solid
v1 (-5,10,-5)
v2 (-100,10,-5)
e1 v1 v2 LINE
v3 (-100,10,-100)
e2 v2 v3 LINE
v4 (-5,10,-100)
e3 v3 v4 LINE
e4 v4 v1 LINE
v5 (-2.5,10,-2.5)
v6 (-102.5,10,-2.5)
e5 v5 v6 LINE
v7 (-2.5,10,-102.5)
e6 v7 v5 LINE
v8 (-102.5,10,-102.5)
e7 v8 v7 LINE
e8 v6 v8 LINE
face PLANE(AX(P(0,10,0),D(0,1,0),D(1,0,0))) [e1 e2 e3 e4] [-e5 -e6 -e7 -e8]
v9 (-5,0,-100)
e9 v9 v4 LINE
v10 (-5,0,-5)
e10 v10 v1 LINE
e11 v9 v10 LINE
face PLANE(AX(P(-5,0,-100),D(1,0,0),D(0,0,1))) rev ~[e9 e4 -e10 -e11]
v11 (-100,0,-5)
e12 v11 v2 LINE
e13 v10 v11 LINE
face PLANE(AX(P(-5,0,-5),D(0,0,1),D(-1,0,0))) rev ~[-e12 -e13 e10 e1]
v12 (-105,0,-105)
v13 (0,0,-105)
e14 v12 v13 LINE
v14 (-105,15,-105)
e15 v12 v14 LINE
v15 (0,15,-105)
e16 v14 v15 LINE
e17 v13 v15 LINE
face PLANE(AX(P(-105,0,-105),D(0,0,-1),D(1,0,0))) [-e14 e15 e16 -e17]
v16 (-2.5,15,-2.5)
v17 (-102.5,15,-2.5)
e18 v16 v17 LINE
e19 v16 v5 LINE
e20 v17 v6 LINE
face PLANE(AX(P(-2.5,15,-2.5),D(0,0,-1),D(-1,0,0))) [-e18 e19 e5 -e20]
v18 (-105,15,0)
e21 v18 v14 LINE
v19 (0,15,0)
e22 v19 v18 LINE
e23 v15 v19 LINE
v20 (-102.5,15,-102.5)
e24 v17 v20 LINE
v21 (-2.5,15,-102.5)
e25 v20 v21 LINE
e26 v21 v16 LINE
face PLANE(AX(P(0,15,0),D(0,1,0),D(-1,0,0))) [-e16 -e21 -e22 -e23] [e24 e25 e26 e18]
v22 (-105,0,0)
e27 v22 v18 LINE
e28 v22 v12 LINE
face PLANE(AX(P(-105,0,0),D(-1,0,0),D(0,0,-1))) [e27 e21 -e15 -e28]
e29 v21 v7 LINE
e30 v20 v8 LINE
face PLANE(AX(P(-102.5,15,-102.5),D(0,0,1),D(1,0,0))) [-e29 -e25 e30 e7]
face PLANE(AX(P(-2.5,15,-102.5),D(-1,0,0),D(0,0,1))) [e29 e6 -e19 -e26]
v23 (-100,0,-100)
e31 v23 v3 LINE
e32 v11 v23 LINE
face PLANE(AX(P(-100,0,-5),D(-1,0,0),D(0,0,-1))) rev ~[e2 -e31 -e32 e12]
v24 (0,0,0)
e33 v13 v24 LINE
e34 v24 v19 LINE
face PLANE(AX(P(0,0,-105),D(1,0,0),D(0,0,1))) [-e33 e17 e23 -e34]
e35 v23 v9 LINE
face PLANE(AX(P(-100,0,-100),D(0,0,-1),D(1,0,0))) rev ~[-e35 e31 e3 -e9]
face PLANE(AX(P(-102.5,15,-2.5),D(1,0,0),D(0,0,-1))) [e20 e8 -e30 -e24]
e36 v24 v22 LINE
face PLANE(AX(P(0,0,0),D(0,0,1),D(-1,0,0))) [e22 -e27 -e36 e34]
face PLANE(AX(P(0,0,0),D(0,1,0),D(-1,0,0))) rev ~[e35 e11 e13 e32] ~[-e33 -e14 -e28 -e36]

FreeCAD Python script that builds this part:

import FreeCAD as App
import Part
import Sketcher
from FreeCAD import Vector

doc = App.newDocument("Part")
params = doc.addObject("Spreadsheet::Sheet", "Params")
for row, (alias, value) in enumerate([
    ("sketch1_width", "105 mm"),
    ("sketch1_width2", "95 mm"),
    ("pad1_length", "15 mm"),
    ("sketch2_width", "100 mm"),
    ("sketch2_width2", "95 mm"),
    ("pocket1_length", "5 mm"),
], start=1):
    params.set(f"A{row}", alias)
    params.set(f"B{row}", "=" + value)
    params.setAlias(f"B{row}", alias)

body = doc.addObject("PartDesign::Body", "Body")

# Sketch on XZ plane
sketch1 = body.newObject("Sketcher::SketchObject", "Sketch")
sketch1.AttachmentSupport = (doc.getObject("XZ_Plane"), [""])
sketch1.MapMode = "FlatFace"
sketch1.addGeometry(Part.LineSegment(Vector(-105, 0, 0), Vector(0, 0, 0)), False)
sketch1.addGeometry(Part.LineSegment(Vector(0, 0, 0), Vector(0, -105, 0)), False)
sketch1.addGeometry(Part.LineSegment(Vector(0, -105, 0), Vector(-105, -105, 0)), False)
sketch1.addGeometry(Part.LineSegment(Vector(-105, -105, 0), Vector(-105, 0, 0)), False)
sketch1.addGeometry(Part.LineSegment(Vector(-5, -100, 0), Vector(-5, -5, 0)), False)
sketch1.addGeometry(Part.LineSegment(Vector(-5, -5, 0), Vector(-100, -5, 0)), False)
sketch1.addGeometry(Part.LineSegment(Vector(-100, -5, 0), Vector(-100, -100, 0)), False)
sketch1.addGeometry(Part.LineSegment(Vector(-100, -100, 0), Vector(-5, -100, 0)), False)
sketch1.addConstraint(Sketcher.Constraint("Coincident", 0, 2, 1, 1))
sketch1.addConstraint(Sketcher.Constraint("Coincident", 1, 2, 2, 1))
sketch1.addConstraint(Sketcher.Constraint("Coincident", 2, 2, 3, 1))
sketch1.addConstraint(Sketcher.Constraint("Coincident", 3, 2, 0, 1))
sketch1.addConstraint(Sketcher.Constraint("Coincident", 4, 2, 5, 1))
sketch1.addConstraint(Sketcher.Constraint("Coincident", 5, 2, 6, 1))
sketch1.addConstraint(Sketcher.Constraint("Coincident", 6, 2, 7, 1))
sketch1.addConstraint(Sketcher.Constraint("Coincident", 7, 2, 4, 1))
sketch1.addConstraint(Sketcher.Constraint("Horizontal", 0))
sketch1.addConstraint(Sketcher.Constraint("Vertical", 1))
sketch1.addConstraint(Sketcher.Constraint("Horizontal", 2))
sketch1.addConstraint(Sketcher.Constraint("Vertical", 3))
sketch1.addConstraint(Sketcher.Constraint("Vertical", 4))
sketch1.addConstraint(Sketcher.Constraint("Horizontal", 5))
sketch1.addConstraint(Sketcher.Constraint("Vertical", 6))
sketch1.addConstraint(Sketcher.Constraint("Horizontal", 7))
sketch1.addConstraint(Sketcher.Constraint("Coincident", 0, 2, -1, 1))
sketch1.addConstraint(Sketcher.Constraint("Equal", 2, 1))
sketch1.addConstraint(Sketcher.Constraint("Equal", 7, 4))
sketch1.addConstraint(Sketcher.Constraint("DistanceX", 0, 1, 0, 2, 105.0))
sketch1.addConstraint(Sketcher.Constraint("DistanceX", 5, 2, 5, 1, 95.0))
sketch1.addConstraint(Sketcher.Constraint("DistanceX", 4, 2, -1, 1, 5.0))
sketch1.addConstraint(Sketcher.Constraint("DistanceY", 4, 2, -1, 1, 5.0))
sketch1.setExpression("Constraints[19]", "Params.sketch1_width")
sketch1.setExpression("Constraints[20]", "Params.sketch1_width2")
pad1 = body.newObject("PartDesign::Pad", "Pad")
pad1.Profile = sketch1
pad1.setExpression("Length", "Params.pad1_length")
pad1.Reversed = True

# Sketch on XZ plane
sketch2 = body.newObject("Sketcher::SketchObject", "Sketch001")
sketch2.AttachmentSupport = (doc.getObject("XZ_Plane"), [""])
sketch2.MapMode = "FlatFace"
sketch2.AttachmentOffset = App.Placement(Vector(0, 0, -15), App.Rotation())
sketch2.addGeometry(Part.LineSegment(Vector(-102, -2, 0), Vector(-2, -2, 0)), False)
sketch2.addGeometry(Part.LineSegment(Vector(-2, -2, 0), Vector(-2, -102, 0)), False)
sketch2.addGeometry(Part.LineSegment(Vector(-2, -102, 0), Vector(-102, -102, 0)), False)
sketch2.addGeometry(Part.LineSegment(Vector(-102, -102, 0), Vector(-102, -2, 0)), False)
sketch2.addGeometry(Part.LineSegment(Vector(-5, -100, 0), Vector(-5, -5, 0)), False)
sketch2.addGeometry(Part.LineSegment(Vector(-5, -5, 0), Vector(-100, -5, 0)), False)
sketch2.addGeometry(Part.LineSegment(Vector(-100, -5, 0), Vector(-100, -100, 0)), False)
sketch2.addGeometry(Part.LineSegment(Vector(-100, -100, 0), Vector(-5, -100, 0)), False)
sketch2.addConstraint(Sketcher.Constraint("Coincident", 0, 2, 1, 1))
sketch2.addConstraint(Sketcher.Constraint("Coincident", 1, 2, 2, 1))
sketch2.addConstraint(Sketcher.Constraint("Coincident", 2, 2, 3, 1))
sketch2.addConstraint(Sketcher.Constraint("Coincident", 3, 2, 0, 1))
sketch2.addConstraint(Sketcher.Constraint("Coincident", 4, 2, 5, 1))
sketch2.addConstraint(Sketcher.Constraint("Coincident", 5, 2, 6, 1))
sketch2.addConstraint(Sketcher.Constraint("Coincident", 6, 2, 7, 1))
sketch2.addConstraint(Sketcher.Constraint("Coincident", 7, 2, 4, 1))
sketch2.addConstraint(Sketcher.Constraint("Horizontal", 0))
sketch2.addConstraint(Sketcher.Constraint("Vertical", 1))
sketch2.addConstraint(Sketcher.Constraint("Horizontal", 2))
sketch2.addConstraint(Sketcher.Constraint("Vertical", 3))
sketch2.addConstraint(Sketcher.Constraint("Vertical", 4))
sketch2.addConstraint(Sketcher.Constraint("Horizontal", 5))
sketch2.addConstraint(Sketcher.Constraint("Vertical", 6))
sketch2.addConstraint(Sketcher.Constraint("Horizontal", 7))
sketch2.addConstraint(Sketcher.Constraint("Equal", 2, 1))
sketch2.addConstraint(Sketcher.Constraint("Equal", 7, 4))
sketch2.addConstraint(Sketcher.Constraint("DistanceX", 0, 1, 0, 2, 100.0))
sketch2.addConstraint(Sketcher.Constraint("DistanceX", 5, 2, 5, 1, 95.0))
sketch2.addConstraint(Sketcher.Constraint("DistanceX", 5, 2, -1, 1, 100.0))
sketch2.addConstraint(Sketcher.Constraint("DistanceY", 6, 2, -1, 1, 100.0))
sketch2.addConstraint(Sketcher.Constraint("DistanceX", 0, 2, -1, 1, 2.5))
sketch2.addConstraint(Sketcher.Constraint("DistanceY", 0, 2, -1, 1, 2.5))
sketch2.setExpression("Constraints[18]", "Params.sketch2_width")
sketch2.setExpression("Constraints[19]", "Params.sketch2_width2")
pocket1 = body.newObject("PartDesign::Pocket", "Pocket")
pocket1.Profile = sketch2
pocket1.setExpression("Length", "Params.pocket1_length")
pocket1.Reversed = True

doc.recompute()
